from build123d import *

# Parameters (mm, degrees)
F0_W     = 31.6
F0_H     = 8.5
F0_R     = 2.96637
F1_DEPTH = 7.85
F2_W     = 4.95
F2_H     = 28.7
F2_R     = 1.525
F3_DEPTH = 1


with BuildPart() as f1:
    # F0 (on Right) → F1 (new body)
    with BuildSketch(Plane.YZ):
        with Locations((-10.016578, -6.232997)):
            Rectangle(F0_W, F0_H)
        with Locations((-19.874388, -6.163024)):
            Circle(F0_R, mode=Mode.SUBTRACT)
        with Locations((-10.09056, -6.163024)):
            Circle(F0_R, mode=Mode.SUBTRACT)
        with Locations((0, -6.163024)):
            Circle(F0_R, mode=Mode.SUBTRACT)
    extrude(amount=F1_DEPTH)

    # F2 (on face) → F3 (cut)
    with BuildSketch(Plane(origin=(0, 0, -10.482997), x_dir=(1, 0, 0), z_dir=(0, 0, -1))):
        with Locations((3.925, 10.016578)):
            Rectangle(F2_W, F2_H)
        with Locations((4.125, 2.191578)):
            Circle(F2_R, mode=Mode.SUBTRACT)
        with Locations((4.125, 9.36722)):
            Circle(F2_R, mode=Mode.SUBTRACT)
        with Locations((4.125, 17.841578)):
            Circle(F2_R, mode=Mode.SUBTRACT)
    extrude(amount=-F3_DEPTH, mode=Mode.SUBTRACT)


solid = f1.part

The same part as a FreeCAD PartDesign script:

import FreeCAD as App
import Part
import Sketcher
from FreeCAD import Vector
Q = App.Units.Quantity


def add_polygon(sketch, points):
    """Adds a closed chain of lines whose ends are joined by coincident constraints."""
    first, n = sketch.GeometryCount, len(points)
    for a, b in zip(points, points[1:] + points[:1]):
        sketch.addGeometry(Part.LineSegment(App.Vector(*a, 0), App.Vector(*b, 0)), False)
    for i in range(n):
        sketch.addConstraint(Sketcher.Constraint("Coincident", first + i, 2, first + (i + 1) % n, 1))

doc = App.newDocument("Part")
body = doc.addObject("PartDesign::Body", "Body")

# Sketch on YZ plane
sketch1 = body.newObject("Sketcher::SketchObject", "Sketch")
sketch1.AttachmentSupport = (doc.getObject("YZ_Plane"), [""])
sketch1.MapMode = "FlatFace"
add_polygon(sketch1, [(-25.8, -2), (-25.8, -10.5), (5.8, -10.5), (5.8, -2)])  # lines 0-3
sketch1.addGeometry(Part.Circle(Vector(-19.9, -6.2, 0), Vector(0, 0, 1), 3), False)  # 4
sketch1.addGeometry(Part.Circle(Vector(-10.1, -6.2, 0), Vector(0, 0, 1), 3), False)  # 5
sketch1.addGeometry(Part.Circle(Vector(0, -6.2, 0), Vector(0, 0, 1), 3), False)  # 6
sketch1.addConstraint(Sketcher.Constraint("Vertical", 0))
sketch1.addConstraint(Sketcher.Constraint("Horizontal", 1))
sketch1.addConstraint(Sketcher.Constraint("Vertical", 2))
sketch1.addConstraint(Sketcher.Constraint("Horizontal", 3))
sketch1.addConstraint(Sketcher.Constraint("Equal", 4, 5))
sketch1.addConstraint(Sketcher.Constraint("Equal", 5, 6))
sketch1.addConstraint(Sketcher.Constraint("PointOnObject", 6, 3, -2))
sketch1.addConstraint(Sketcher.Constraint("Horizontal", 4, 3, 5, 3))
sketch1.addConstraint(Sketcher.Constraint("Horizontal", 5, 3, 6, 3))
sketch1.addConstraint(Sketcher.Constraint("DistanceX", 1, 1, 1, 2, Q("31.6 mm")))
sketch1.addConstraint(Sketcher.Constraint("DistanceY", 0, 2, 0, 1, Q("8.5 mm")))
sketch1.addConstraint(Sketcher.Constraint("Diameter", 4, Q("5.93274 mm")))
sketch1.addConstraint(Sketcher.Constraint("DistanceX", 4, 3, -1, 1, Q("19.874388 mm")))
sketch1.addConstraint(Sketcher.Constraint("DistanceX", 5, 3, -1, 1, Q("10.09056 mm")))
sketch1.addConstraint(Sketcher.Constraint("DistanceX", 0, 2, -1, 1, Q("25.816578 mm")))
sketch1.addConstraint(Sketcher.Constraint("DistanceY", 4, 3, -1, 1, Q("6.163024 mm")))
sketch1.addConstraint(Sketcher.Constraint("DistanceY", 0, 2, -1, 1, Q("10.482997 mm")))
pad1 = body.newObject("PartDesign::Pad", "Pad")
pad1.Profile = sketch1
pad1.Length = 7.85

# Sketch on XY plane
sketch2 = body.newObject("Sketcher::SketchObject", "Sketch001")
sketch2.AttachmentSupport = (doc.getObject("XY_Plane"), [""])
sketch2.MapMode = "FlatFace"
sketch2.AttachmentOffset = App.Placement(Vector(0, 0, -10.482997), App.Rotation())
add_polygon(sketch2, [(1.4, -24.4), (1.4, 4.3), (6.4, 4.3), (6.4, -24.4)])  # lines 0-3
sketch2.addGeometry(Part.Circle(Vector(4.1, -2.2, 0), Vector(0, 0, 1), 1.5), False)  # 4
sketch2.addGeometry(Part.Circle(Vector(4.1, -9.4, 0), Vector(0, 0, 1), 1.5), False)  # 5
sketch2.addGeometry(Part.Circle(Vector(4.1, -17.8, 0), Vector(0, 0, 1), 1.5), False)  # 6
sketch2.addConstraint(Sketcher.Constraint("Vertical", 0))
sketch2.addConstraint(Sketcher.Constraint("Horizontal", 1))
sketch2.addConstraint(Sketcher.Constraint("Vertical", 2))
sketch2.addConstraint(Sketcher.Constraint("Horizontal", 3))
sketch2.addConstraint(Sketcher.Constraint("Equal", 4, 5))
sketch2.addConstraint(Sketcher.Constraint("Equal", 5, 6))
sketch2.addConstraint(Sketcher.Constraint("Vertical", 4, 3, 5, 3))
sketch2.addConstraint(Sketcher.Constraint("Vertical", 5, 3, 6, 3))
sketch2.addConstraint(Sketcher.Constraint("Diameter", 4, Q("3.05 mm")))
sketch2.addConstraint(Sketcher.Constraint("DistanceY", 0, 1, 0, 2, Q("28.7 mm")))
sketch2.addConstraint(Sketcher.Constraint("DistanceX", 1, 1, 1, 2, Q("4.95 mm")))
sketch2.addConstraint(Sketcher.Constraint("DistanceX", -1, 1, 1, 2, Q("6.4 mm")))
sketch2.addConstraint(Sketcher.Constraint("DistanceY", 6, 3, 4, 3, Q("15.65 mm")))
sketch2.addConstraint(Sketcher.Constraint("DistanceX", -1, 1, 4, 3, Q("4.125 mm")))
sketch2.addConstraint(Sketcher.Constraint("DistanceY", 4, 3, 0, 2, Q("6.525 mm")))
sketch2.addConstraint(Sketcher.Constraint("DistanceY", 5, 3, -1, 1, Q("9.36722 mm")))
sketch2.addConstraint(Sketcher.Constraint("DistanceY", -1, 1, 0, 2, Q("4.333422 mm")))
pocket1 = body.newObject("PartDesign::Pocket", "Pocket")
pocket1.Profile = sketch2
pocket1.Length = 1
pocket1.Reversed = True

doc.recompute()
